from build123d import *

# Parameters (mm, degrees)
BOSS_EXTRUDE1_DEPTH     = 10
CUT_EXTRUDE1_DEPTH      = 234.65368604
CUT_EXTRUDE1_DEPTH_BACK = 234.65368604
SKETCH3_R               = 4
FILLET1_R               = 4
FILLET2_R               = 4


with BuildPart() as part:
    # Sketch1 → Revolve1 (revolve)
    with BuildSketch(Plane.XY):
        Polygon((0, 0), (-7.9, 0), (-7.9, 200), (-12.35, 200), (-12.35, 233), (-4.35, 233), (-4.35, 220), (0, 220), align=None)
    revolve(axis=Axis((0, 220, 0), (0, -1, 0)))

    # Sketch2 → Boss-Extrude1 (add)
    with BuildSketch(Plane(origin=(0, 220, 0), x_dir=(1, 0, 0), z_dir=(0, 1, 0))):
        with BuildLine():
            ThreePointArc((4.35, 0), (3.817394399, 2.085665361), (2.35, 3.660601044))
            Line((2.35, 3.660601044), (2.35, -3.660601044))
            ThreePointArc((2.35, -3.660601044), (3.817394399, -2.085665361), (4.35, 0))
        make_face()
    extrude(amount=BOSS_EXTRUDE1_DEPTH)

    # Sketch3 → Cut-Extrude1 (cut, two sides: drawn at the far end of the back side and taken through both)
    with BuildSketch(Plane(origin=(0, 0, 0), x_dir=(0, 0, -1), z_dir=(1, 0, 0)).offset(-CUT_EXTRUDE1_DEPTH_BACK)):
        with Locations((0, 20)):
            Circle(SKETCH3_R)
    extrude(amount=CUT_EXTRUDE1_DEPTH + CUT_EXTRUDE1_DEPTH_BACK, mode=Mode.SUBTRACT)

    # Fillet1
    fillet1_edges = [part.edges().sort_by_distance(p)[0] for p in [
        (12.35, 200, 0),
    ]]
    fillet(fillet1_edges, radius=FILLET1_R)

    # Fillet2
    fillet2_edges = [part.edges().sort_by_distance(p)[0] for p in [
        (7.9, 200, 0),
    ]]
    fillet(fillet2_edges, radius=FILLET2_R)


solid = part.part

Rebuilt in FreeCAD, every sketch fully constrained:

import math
import FreeCAD as App
import Part
import Sketcher


def edges_at(feature, points):
    """Names of the edges that pass closest to the given points."""
    edges = feature.Shape.Edges
    near = lambda p: min(range(len(edges)), key=lambda i: edges[i].distToShape(Part.Vertex(*p))[0])
    return sorted({f"Edge{near(p) + 1}" for p in points})

doc = App.newDocument("Part")
body = doc.addObject("PartDesign::Body", "Body")

# Sketch on XY plane
sketch1 = body.newObject("Sketcher::SketchObject", "Sketch")
sketch1.AttachmentSupport = (doc.getObject("XY_Plane"), [""])
sketch1.MapMode = "FlatFace"
sketch1.addGeometry(Part.LineSegment(App.Vector(-7.9, 0, 0), App.Vector(0, 0, 0)), False)
sketch1.addGeometry(Part.LineSegment(App.Vector(0, 0, 0), App.Vector(0, 220, 0)), False)
sketch1.addGeometry(Part.LineSegment(App.Vector(0, 220, 0), App.Vector(-4.3, 220, 0)), False)
sketch1.addGeometry(Part.LineSegment(App.Vector(-4.3, 220, 0), App.Vector(-4.3, 233, 0)), False)
sketch1.addGeometry(Part.LineSegment(App.Vector(-4.3, 233, 0), App.Vector(-12.3, 233, 0)), False)
sketch1.addGeometry(Part.LineSegment(App.Vector(-12.3, 233, 0), App.Vector(-12.3, 200, 0)), False)
sketch1.addGeometry(Part.LineSegment(App.Vector(-12.3, 200, 0), App.Vector(-7.9, 200, 0)), False)
sketch1.addGeometry(Part.LineSegment(App.Vector(-7.9, 200, 0), App.Vector(-7.9, 0, 0)), False)
sketch1.addConstraint(Sketcher.Constraint("Coincident", 0, 2, 1, 1))
sketch1.addConstraint(Sketcher.Constraint("Coincident", 1, 2, 2, 1))
sketch1.addConstraint(Sketcher.Constraint("Coincident", 2, 2, 3, 1))
sketch1.addConstraint(Sketcher.Constraint("Coincident", 3, 2, 4, 1))
sketch1.addConstraint(Sketcher.Constraint("Coincident", 4, 2, 5, 1))
sketch1.addConstraint(Sketcher.Constraint("Coincident", 5, 2, 6, 1))
sketch1.addConstraint(Sketcher.Constraint("Coincident", 6, 2, 7, 1))
sketch1.addConstraint(Sketcher.Constraint("Coincident", 7, 2, 0, 1))
sketch1.addConstraint(Sketcher.Constraint("Horizontal", 0))
sketch1.addConstraint(Sketcher.Constraint("Vertical", 1))
sketch1.addConstraint(Sketcher.Constraint("Horizontal", 2))
sketch1.addConstraint(Sketcher.Constraint("Vertical", 3))
sketch1.addConstraint(Sketcher.Constraint("Horizontal", 4))
sketch1.addConstraint(Sketcher.Constraint("Vertical", 5))
sketch1.addConstraint(Sketcher.Constraint("Horizontal", 6))
sketch1.addConstraint(Sketcher.Constraint("Vertical", 7))
sketch1.addConstraint(Sketcher.Constraint("Coincident", 0, 2, -1, 1))
sketch1.addConstraint(Sketcher.Constraint("DistanceX", 4, 2, 4, 1, 8.0))
sketch1.addConstraint(Sketcher.Constraint("DistanceY", 1, 1, 1, 2, 220.0))
sketch1.addConstraint(Sketcher.Constraint("DistanceY", 3, 1, 3, 2, 13.0))
sketch1.addConstraint(Sketcher.Constraint("DistanceY", 5, 2, 5, 1, 33.0))
sketch1.addConstraint(Sketcher.Constraint("DistanceX", 0, 1, 0, 2, 7.9))
sketch1.addConstraint(Sketcher.Constraint("DistanceX", 2, 2, 2, 1, 4.35))
revolution = body.newObject("PartDesign::Revolution", "Revolution")
revolution.Profile = sketch1
revolution.ReferenceAxis = (sketch1, ["V_Axis"])
revolution.Angle = 360

# Sketch on XZ plane
sketch2 = body.newObject("Sketcher::SketchObject", "Sketch001")
sketch2.AttachmentSupport = (doc.getObject("XZ_Plane"), [""])
sketch2.MapMode = "FlatFace"
sketch2.AttachmentOffset = App.Placement(App.Vector(0, 0, -220), App.Rotation())
sketch2.addGeometry(Part.ArcOfCircle(Part.Circle(App.Vector(0, 0, 0), App.Vector(0, 0, 1), 4.4), math.radians(-57), math.radians(0)), False)
sketch2.addGeometry(Part.LineSegment(App.Vector(2.4, -3.7, 0), App.Vector(2.4, 3.7, 0)), False)
sketch2.addGeometry(Part.ArcOfCircle(Part.Circle(App.Vector(0, 0, 0), App.Vector(0, 0, 1), 4.4), math.radians(0), math.radians(57)), False)
sketch2.addConstraint(Sketcher.Constraint("Coincident", 0, 1, 1, 1))
sketch2.addConstraint(Sketcher.Constraint("Coincident", 1, 2, 2, 2))
sketch2.addConstraint(Sketcher.Constraint("Tangent", 2, 1, 0, 2))
sketch2.addConstraint(Sketcher.Constraint("Vertical", 1))
sketch2.addConstraint(Sketcher.Constraint("Coincident", 0, 3, -1, 1))
sketch2.addConstraint(Sketcher.Constraint("Equal", 0, 2))
sketch2.addConstraint(Sketcher.Constraint("PointOnObject", 2, 1, -1))
sketch2.addConstraint(Sketcher.Constraint("Radius", 0, 4.35))
sketch2.addConstraint(Sketcher.Constraint("DistanceX", 1, 2, 2, 1, 2.0))
pad1 = body.newObject("PartDesign::Pad", "Pad")
pad1.Profile = sketch2
pad1.Length = 10
pad1.Reversed = True

# Sketch on YZ plane
sketch3 = body.newObject("Sketcher::SketchObject", "Sketch002")
sketch3.AttachmentSupport = (doc.getObject("YZ_Plane"), [""])
sketch3.MapMode = "FlatFace"
sketch3.addGeometry(Part.Circle(App.Vector(20, 0, 0), App.Vector(0, 0, 1), 4), False)
sketch3.addConstraint(Sketcher.Constraint("PointOnObject", 0, 3, -1))
sketch3.addConstraint(Sketcher.Constraint("Diameter", 0, 8.0))
sketch3.addConstraint(Sketcher.Constraint("DistanceX", -1, 1, 0, 3, 20.0))
pocket1 = body.newObject("PartDesign::Pocket", "Pocket")
pocket1.Profile = sketch3
pocket1.Type = "ThroughAll"
pocket1.Midplane = True
doc.recompute()

fillet = body.newObject("PartDesign::Fillet", "Fillet")
fillet.Base = (pocket1, edges_at(pocket1, [(12.35, 200, 0)]))
fillet.Radius = 4
doc.recompute()

fillet2 = body.newObject("PartDesign::Fillet", "Fillet001")
fillet2.Base = (fillet, edges_at(fillet, [(7.9, 200, 0)]))
fillet2.Radius = 4

doc.recompute()
